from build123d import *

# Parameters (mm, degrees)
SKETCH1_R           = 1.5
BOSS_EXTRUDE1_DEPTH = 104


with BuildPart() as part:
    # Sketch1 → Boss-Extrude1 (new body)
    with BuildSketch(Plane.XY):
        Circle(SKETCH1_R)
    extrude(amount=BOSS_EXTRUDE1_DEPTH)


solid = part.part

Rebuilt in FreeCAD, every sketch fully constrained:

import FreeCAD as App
import Part
import Sketcher

doc = App.newDocument("Part")
body = doc.addObject("PartDesign::Body", "Body")

# Sketch on XY plane
sketch1 = body.newObject("Sketcher::SketchObject", "Sketch")
sketch1.AttachmentSupport = (doc.getObject("XY_Plane"), [""])
sketch1.MapMode = "FlatFace"
sketch1.addGeometry(Part.Circle(App.Vector(0, 0, 0), App.Vector(0, 0, 1), 1.5), False)
sketch1.addConstraint(Sketcher.Constraint("Coincident", 0, 3, -1, 1))
sketch1.addConstraint(Sketcher.Constraint("Diameter", 0, 3.0))
pad1 = body.newObject("PartDesign::Pad", "Pad")
pad1.Profile = sketch1
pad1.Length = 104

doc.recompute()
